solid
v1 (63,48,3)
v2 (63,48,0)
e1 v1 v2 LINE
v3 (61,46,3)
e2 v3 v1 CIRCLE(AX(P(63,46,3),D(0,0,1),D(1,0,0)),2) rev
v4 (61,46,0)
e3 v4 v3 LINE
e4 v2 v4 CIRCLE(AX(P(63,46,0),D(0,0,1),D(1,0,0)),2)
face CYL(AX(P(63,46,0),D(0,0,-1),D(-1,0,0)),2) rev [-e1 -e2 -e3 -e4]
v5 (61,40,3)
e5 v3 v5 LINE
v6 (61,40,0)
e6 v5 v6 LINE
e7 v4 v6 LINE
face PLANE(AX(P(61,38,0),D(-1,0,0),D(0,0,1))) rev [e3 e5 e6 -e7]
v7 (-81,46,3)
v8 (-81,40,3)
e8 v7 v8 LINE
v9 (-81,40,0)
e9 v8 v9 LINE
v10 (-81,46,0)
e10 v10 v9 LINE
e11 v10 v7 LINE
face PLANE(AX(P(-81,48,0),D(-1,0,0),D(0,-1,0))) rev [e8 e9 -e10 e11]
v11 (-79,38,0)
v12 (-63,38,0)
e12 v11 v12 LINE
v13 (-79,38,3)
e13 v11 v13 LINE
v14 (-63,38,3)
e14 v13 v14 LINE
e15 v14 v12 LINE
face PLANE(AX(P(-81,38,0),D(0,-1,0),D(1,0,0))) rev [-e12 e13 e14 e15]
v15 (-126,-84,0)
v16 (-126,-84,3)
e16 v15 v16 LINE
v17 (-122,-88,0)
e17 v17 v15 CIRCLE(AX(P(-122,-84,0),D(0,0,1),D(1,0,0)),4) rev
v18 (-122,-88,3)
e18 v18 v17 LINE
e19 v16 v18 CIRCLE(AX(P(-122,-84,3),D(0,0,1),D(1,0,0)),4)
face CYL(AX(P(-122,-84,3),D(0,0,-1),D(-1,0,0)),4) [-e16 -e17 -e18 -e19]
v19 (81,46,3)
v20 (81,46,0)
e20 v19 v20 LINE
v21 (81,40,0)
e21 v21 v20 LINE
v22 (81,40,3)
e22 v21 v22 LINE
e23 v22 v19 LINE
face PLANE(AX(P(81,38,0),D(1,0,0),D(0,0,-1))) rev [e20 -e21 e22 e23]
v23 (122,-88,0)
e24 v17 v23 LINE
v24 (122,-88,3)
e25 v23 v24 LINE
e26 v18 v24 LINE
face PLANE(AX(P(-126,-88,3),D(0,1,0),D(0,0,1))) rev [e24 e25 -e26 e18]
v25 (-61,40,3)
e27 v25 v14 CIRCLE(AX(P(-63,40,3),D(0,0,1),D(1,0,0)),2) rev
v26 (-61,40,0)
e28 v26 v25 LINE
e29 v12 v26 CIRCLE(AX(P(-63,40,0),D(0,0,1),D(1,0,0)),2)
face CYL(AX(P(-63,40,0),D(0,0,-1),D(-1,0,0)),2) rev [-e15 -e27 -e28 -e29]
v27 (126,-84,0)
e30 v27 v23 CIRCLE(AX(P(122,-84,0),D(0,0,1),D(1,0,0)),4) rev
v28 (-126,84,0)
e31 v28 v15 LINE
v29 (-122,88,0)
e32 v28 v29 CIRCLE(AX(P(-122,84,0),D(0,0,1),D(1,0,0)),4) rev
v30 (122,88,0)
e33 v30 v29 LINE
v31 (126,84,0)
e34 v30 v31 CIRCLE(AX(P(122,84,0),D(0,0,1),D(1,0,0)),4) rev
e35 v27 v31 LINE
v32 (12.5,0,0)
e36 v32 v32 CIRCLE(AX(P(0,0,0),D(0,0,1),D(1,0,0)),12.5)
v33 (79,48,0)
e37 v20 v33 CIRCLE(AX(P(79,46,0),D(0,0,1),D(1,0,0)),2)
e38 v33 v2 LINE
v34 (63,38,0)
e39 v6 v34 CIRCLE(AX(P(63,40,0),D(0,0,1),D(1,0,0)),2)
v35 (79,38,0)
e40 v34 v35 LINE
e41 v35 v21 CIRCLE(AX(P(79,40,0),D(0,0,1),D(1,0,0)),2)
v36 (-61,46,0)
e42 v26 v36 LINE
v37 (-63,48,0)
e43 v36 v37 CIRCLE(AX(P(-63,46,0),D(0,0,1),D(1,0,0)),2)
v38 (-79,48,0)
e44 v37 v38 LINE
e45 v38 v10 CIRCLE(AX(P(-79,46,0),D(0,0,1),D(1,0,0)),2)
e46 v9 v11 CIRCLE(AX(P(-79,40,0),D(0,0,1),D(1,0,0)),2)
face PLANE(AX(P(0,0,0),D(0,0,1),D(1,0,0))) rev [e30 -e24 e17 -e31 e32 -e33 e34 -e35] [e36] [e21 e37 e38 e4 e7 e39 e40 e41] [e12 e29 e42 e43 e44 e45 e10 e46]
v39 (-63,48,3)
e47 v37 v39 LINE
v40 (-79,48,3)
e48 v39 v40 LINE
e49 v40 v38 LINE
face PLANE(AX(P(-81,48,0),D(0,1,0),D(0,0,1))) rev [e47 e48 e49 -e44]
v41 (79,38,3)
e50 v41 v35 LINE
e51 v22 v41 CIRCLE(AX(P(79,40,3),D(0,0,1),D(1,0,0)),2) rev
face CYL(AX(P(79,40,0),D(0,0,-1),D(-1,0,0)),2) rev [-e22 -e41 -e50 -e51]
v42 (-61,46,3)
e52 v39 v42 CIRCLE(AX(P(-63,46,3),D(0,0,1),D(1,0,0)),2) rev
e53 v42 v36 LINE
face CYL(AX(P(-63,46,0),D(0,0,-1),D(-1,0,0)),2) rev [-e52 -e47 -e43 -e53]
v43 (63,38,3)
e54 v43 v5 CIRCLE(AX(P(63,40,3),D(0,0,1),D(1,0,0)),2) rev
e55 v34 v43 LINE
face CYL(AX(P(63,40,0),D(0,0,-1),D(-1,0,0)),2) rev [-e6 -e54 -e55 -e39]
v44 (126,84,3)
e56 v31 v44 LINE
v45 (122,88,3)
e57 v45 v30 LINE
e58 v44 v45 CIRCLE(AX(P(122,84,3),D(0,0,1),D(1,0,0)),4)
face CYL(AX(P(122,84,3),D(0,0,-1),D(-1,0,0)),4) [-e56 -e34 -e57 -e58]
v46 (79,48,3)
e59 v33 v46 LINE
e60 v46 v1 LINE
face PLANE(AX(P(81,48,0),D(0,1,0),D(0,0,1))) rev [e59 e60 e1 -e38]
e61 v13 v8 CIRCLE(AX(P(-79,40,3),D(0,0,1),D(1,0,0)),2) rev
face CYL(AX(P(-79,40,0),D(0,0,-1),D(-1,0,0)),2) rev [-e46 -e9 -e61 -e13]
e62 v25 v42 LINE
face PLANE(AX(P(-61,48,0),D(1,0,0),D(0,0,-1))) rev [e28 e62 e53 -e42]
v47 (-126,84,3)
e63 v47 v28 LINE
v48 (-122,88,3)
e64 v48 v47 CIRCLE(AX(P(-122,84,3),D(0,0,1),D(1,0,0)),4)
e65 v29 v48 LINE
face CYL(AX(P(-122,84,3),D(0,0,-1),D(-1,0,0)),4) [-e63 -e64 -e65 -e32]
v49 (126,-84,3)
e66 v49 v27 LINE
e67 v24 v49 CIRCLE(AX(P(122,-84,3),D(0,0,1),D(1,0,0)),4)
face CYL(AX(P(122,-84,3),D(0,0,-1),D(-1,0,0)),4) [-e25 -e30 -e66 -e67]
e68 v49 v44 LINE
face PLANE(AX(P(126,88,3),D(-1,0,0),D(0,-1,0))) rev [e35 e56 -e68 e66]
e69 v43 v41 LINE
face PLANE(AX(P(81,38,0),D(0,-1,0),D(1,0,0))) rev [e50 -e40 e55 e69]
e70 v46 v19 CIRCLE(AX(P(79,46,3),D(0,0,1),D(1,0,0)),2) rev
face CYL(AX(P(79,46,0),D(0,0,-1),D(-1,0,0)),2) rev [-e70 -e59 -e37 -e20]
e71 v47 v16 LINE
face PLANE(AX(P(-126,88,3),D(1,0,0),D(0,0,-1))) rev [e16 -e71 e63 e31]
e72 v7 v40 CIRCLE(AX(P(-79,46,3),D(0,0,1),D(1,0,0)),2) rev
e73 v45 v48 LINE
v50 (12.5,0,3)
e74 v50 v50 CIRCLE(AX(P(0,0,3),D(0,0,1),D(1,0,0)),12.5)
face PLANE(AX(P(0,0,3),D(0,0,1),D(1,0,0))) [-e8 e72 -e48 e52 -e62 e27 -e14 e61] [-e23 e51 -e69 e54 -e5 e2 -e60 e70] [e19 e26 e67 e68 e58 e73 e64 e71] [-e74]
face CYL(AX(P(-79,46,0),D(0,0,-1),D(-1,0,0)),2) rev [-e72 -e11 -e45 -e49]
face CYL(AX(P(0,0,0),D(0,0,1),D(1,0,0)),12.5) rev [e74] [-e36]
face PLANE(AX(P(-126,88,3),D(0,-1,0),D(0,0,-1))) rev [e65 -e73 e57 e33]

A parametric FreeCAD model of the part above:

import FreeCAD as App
import Part
import Sketcher
from FreeCAD import Vector


def edges_at(feature, points):
    """Names of the edges that pass closest to the given points."""
    edges = feature.Shape.Edges
    near = lambda p: min(range(len(edges)), key=lambda i: edges[i].distToShape(Part.Vertex(*p))[0])
    return sorted({f"Edge{near(p) + 1}" for p in points})

doc = App.newDocument("Part")
body = doc.addObject("PartDesign::Body", "Body")

sketch1 = body.newObject("Sketcher::SketchObject", "Sketch")
sketch1.AttachmentSupport = (doc.getObject("XY_Plane"), [""])
sketch1.MapMode = "FlatFace"
sketch1.addGeometry(Part.LineSegment(Vector(-126, 88, 0), Vector(-126, -88, 0)), False)
sketch1.addGeometry(Part.LineSegment(Vector(-126, -88, 0), Vector(126, -88, 0)), False)
sketch1.addGeometry(Part.LineSegment(Vector(126, -88, 0), Vector(126, 88, 0)), False)
sketch1.addGeometry(Part.LineSegment(Vector(126, 88, 0), Vector(-126, 88, 0)), False)
sketch1.addConstraint(Sketcher.Constraint("Coincident", 0, 2, 1, 1))
sketch1.addConstraint(Sketcher.Constraint("Coincident", 1, 2, 2, 1))
sketch1.addConstraint(Sketcher.Constraint("Coincident", 2, 2, 3, 1))
sketch1.addConstraint(Sketcher.Constraint("Coincident", 3, 2, 0, 1))
sketch1.addConstraint(Sketcher.Constraint("Vertical", 0))
sketch1.addConstraint(Sketcher.Constraint("Horizontal", 1))
sketch1.addConstraint(Sketcher.Constraint("Vertical", 2))
sketch1.addConstraint(Sketcher.Constraint("Horizontal", 3))
sketch1.addConstraint(Sketcher.Constraint("Symmetric", 0, 2, 2, 2, -1, 1))
sketch1.addConstraint(Sketcher.Constraint("DistanceX", 1, 1, 1, 2, 252.0))
sketch1.addConstraint(Sketcher.Constraint("DistanceY", 0, 2, 0, 1, 176.0))
pad1 = body.newObject("PartDesign::Pad", "Pad")
pad1.Profile = sketch1
pad1.Length = 3

sketch2 = body.newObject("Sketcher::SketchObject", "Sketch001")
sketch2.AttachmentSupport = (doc.getObject("XY_Plane"), [""])
sketch2.MapMode = "FlatFace"
sketch2.AttachmentOffset = App.Placement(Vector(0, 0, 3), App.Rotation())
sketch2.addGeometry(Part.Circle(Vector(0, 0, 0), Vector(0, 0, 1), 12), False)
sketch2.addGeometry(Part.LineSegment(Vector(-81, 48, 0), Vector(-81, 38, 0)), False)
sketch2.addGeometry(Part.LineSegment(Vector(-81, 38, 0), Vector(-61, 38, 0)), False)
sketch2.addGeometry(Part.LineSegment(Vector(-61, 38, 0), Vector(-61, 48, 0)), False)
sketch2.addGeometry(Part.LineSegment(Vector(-61, 48, 0), Vector(-81, 48, 0)), False)
sketch2.addGeometry(Part.LineSegment(Vector(61, 48, 0), Vector(61, 38, 0)), False)
sketch2.addGeometry(Part.LineSegment(Vector(61, 38, 0), Vector(81, 38, 0)), False)
sketch2.addGeometry(Part.LineSegment(Vector(81, 38, 0), Vector(81, 48, 0)), False)
sketch2.addGeometry(Part.LineSegment(Vector(81, 48, 0), Vector(61, 48, 0)), False)
sketch2.addConstraint(Sketcher.Constraint("Coincident", 1, 2, 2, 1))
sketch2.addConstraint(Sketcher.Constraint("Coincident", 2, 2, 3, 1))
sketch2.addConstraint(Sketcher.Constraint("Coincident", 3, 2, 4, 1))
sketch2.addConstraint(Sketcher.Constraint("Coincident", 4, 2, 1, 1))
sketch2.addConstraint(Sketcher.Constraint("Coincident", 5, 2, 6, 1))
sketch2.addConstraint(Sketcher.Constraint("Coincident", 6, 2, 7, 1))
sketch2.addConstraint(Sketcher.Constraint("Coincident", 7, 2, 8, 1))
sketch2.addConstraint(Sketcher.Constraint("Coincident", 8, 2, 5, 1))
sketch2.addConstraint(Sketcher.Constraint("Vertical", 1))
sketch2.addConstraint(Sketcher.Constraint("Horizontal", 2))
sketch2.addConstraint(Sketcher.Constraint("Vertical", 3))
sketch2.addConstraint(Sketcher.Constraint("Horizontal", 4))
sketch2.addConstraint(Sketcher.Constraint("Vertical", 5))
sketch2.addConstraint(Sketcher.Constraint("Horizontal", 6))
sketch2.addConstraint(Sketcher.Constraint("Vertical", 7))
sketch2.addConstraint(Sketcher.Constraint("Horizontal", 8))
sketch2.addConstraint(Sketcher.Constraint("Coincident", 0, 3, -1, 1))
sketch2.addConstraint(Sketcher.Constraint("Symmetric", 2, 2, 5, 2, -2))
sketch2.addConstraint(Sketcher.Constraint("Symmetric", 4, 2, 7, 2, -2))
sketch2.addConstraint(Sketcher.Constraint("Diameter", 0, 25.0))
sketch2.addConstraint(Sketcher.Constraint("DistanceX", 2, 1, 2, 2, 20.0))
sketch2.addConstraint(Sketcher.Constraint("DistanceY", 1, 2, 1, 1, 10.0))
sketch2.addConstraint(Sketcher.Constraint("DistanceX", 1, 2, -1, 1, 81.0))
sketch2.addConstraint(Sketcher.Constraint("DistanceY", -1, 1, 1, 2, 38.0))
pocket1 = body.newObject("PartDesign::Pocket", "Pocket")
pocket1.Profile = sketch2
pocket1.Type = "ThroughAll"
doc.recompute()

fillet = body.newObject("PartDesign::Fillet", "Fillet")
fillet.Base = (pocket1, edges_at(pocket1, [
    (-81, 38, 1.5),
    (-81, 48, 1.5),
    (-61, 48, 1.5),
    (-61, 38, 1.5),
    (81, 48, 1.5),
    (81, 38, 1.5),
    (61, 38, 1.5),
    (61, 48, 1.5),
]))
fillet.Radius = 2
doc.recompute()

fillet2 = body.newObject("PartDesign::Fillet", "Fillet001")
fillet2.Base = (fillet, edges_at(fillet, [
    (126, -88, 1.5),
    (-126, -88, 1.5),
    (-126, 88, 1.5),
    (126, 88, 1.5),
]))
fillet2.Radius = 4

doc.recompute()
